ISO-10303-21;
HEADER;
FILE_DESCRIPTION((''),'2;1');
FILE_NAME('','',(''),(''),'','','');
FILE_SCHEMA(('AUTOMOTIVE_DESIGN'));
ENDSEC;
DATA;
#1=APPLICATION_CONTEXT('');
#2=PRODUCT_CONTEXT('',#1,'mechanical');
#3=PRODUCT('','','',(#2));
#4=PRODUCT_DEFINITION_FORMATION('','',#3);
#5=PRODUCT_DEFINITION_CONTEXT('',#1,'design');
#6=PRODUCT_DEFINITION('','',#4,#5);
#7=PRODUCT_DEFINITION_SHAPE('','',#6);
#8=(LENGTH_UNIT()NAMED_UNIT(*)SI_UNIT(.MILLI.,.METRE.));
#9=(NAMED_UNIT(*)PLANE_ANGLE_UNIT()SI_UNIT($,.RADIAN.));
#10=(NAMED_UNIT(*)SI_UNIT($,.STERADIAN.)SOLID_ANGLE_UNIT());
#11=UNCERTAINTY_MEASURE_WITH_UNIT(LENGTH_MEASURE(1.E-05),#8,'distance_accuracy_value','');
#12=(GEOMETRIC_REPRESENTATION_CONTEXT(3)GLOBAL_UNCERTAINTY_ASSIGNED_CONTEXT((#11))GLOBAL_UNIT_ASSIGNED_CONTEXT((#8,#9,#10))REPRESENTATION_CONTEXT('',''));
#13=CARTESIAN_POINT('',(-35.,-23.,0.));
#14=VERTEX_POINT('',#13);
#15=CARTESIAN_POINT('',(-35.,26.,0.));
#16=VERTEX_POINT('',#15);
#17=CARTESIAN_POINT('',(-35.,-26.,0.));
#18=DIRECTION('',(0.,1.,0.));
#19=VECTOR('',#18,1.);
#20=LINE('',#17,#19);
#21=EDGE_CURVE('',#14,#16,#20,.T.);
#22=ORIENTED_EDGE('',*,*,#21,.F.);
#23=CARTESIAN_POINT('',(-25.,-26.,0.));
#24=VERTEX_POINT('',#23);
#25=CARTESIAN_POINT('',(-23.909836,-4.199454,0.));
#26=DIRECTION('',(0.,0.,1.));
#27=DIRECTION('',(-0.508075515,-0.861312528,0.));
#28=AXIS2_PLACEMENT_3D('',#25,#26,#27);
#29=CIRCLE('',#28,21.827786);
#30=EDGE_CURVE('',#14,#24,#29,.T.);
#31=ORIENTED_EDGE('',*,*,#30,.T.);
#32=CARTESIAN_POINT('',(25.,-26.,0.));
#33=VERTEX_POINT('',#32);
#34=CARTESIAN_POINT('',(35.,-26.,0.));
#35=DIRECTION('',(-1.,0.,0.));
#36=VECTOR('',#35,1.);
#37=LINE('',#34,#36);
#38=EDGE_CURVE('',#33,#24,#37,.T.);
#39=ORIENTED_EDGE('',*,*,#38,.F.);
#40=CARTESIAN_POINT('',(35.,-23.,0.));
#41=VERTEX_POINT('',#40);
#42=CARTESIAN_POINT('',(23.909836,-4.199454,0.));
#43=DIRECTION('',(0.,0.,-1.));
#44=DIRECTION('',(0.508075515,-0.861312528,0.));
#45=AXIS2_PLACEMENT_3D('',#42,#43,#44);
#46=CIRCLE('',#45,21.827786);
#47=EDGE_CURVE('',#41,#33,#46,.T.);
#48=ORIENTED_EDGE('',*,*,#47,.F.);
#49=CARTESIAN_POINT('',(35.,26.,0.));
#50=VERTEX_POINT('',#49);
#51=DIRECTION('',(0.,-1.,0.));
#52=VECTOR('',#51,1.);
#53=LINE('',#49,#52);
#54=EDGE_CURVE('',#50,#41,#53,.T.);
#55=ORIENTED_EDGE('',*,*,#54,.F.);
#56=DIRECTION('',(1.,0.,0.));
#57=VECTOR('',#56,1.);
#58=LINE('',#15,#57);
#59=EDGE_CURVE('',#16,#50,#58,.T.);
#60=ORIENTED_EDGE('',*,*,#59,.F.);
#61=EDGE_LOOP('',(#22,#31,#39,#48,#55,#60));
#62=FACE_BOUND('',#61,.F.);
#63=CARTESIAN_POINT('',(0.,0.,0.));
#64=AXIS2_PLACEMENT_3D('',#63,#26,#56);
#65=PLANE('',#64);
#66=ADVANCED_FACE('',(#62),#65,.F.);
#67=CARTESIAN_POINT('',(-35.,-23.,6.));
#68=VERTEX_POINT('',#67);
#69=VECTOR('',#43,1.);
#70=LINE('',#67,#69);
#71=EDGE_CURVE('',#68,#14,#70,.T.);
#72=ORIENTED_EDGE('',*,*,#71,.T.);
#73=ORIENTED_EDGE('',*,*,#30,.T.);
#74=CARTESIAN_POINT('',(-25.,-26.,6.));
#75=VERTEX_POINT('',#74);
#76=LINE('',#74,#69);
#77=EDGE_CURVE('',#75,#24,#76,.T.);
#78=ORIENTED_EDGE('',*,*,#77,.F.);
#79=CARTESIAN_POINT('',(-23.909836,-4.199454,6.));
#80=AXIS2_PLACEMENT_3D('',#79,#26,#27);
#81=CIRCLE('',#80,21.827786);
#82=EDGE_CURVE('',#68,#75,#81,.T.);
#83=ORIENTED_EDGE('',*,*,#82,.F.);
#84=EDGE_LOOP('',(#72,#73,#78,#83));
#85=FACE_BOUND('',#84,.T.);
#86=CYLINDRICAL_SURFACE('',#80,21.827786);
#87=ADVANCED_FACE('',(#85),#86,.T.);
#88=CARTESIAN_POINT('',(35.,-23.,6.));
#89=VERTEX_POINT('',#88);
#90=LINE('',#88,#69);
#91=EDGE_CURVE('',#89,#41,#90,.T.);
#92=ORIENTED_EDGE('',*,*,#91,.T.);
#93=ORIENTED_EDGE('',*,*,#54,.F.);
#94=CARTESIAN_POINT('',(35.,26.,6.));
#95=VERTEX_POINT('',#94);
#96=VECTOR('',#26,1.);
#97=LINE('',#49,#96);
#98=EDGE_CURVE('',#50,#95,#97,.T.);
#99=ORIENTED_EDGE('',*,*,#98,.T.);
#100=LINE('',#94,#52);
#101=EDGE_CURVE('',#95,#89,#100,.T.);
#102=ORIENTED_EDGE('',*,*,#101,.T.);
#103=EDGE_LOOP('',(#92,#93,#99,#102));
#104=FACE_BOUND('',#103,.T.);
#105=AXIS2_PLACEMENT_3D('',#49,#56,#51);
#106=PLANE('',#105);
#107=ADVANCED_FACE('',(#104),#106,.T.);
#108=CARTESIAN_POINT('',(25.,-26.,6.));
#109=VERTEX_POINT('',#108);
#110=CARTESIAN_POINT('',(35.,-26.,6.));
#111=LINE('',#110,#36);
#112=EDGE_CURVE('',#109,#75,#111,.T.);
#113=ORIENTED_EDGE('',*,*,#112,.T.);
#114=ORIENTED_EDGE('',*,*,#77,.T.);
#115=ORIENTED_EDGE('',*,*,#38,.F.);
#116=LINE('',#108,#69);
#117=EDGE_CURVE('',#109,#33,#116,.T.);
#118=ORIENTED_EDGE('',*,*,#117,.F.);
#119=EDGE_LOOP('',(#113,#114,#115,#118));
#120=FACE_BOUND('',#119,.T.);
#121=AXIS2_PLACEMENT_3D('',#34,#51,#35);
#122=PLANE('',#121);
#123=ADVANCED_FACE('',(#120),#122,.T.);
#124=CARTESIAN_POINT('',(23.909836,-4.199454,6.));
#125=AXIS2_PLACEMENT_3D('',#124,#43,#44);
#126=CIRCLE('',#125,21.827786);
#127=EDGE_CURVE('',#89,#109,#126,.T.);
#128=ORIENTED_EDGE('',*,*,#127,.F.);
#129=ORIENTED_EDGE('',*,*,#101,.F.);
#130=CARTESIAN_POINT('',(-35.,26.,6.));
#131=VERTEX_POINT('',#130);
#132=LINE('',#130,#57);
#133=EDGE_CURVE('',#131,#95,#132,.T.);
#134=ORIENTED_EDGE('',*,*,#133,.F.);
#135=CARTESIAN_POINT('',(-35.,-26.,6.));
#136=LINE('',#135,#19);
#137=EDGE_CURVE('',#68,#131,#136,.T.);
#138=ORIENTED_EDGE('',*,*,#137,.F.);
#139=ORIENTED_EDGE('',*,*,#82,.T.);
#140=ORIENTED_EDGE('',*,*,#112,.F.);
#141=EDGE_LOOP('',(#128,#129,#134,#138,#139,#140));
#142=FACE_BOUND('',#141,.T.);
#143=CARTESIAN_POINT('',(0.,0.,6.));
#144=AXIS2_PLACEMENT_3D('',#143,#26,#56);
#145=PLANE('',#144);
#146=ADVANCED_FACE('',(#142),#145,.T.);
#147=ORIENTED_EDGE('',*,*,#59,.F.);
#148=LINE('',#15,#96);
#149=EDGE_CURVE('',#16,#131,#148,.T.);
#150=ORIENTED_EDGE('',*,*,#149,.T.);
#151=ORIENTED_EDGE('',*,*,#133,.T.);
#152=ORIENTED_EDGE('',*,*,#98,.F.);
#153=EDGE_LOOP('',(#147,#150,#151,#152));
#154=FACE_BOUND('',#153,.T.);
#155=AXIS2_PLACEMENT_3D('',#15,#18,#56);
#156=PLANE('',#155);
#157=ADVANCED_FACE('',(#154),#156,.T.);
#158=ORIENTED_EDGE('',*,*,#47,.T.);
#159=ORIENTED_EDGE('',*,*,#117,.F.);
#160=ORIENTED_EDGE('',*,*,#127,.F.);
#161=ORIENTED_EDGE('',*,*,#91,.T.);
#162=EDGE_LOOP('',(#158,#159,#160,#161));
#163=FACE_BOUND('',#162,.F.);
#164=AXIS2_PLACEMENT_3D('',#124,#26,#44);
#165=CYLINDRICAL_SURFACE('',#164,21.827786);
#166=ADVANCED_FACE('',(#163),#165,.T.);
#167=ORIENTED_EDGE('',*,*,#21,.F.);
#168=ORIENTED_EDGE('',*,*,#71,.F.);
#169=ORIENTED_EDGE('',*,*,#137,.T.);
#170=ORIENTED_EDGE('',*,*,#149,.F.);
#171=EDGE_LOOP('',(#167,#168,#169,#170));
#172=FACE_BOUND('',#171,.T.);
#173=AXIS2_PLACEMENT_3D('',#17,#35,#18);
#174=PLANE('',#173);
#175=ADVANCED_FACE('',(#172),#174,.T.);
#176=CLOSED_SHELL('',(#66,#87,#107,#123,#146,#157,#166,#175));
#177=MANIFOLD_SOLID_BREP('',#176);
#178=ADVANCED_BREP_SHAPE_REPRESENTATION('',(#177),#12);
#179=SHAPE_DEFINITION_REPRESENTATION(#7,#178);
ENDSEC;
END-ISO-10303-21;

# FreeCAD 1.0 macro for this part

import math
import FreeCAD as App
import Part
import Sketcher
from FreeCAD import Vector


def add_polygon(sketch, points):
    """Adds a closed chain of lines whose ends are joined by coincident constraints."""
    first, n = sketch.GeometryCount, len(points)
    for a, b in zip(points, points[1:] + points[:1]):
        sketch.addGeometry(Part.LineSegment(App.Vector(*a, 0), App.Vector(*b, 0)), False)
    for i in range(n):
        sketch.addConstraint(Sketcher.Constraint("Coincident", first + i, 2, first + (i + 1) % n, 1))

doc = App.newDocument("Part")
params = doc.addObject("Spreadsheet::Sheet", "Params")
for row, (alias, value) in enumerate([
    ("sketch1_width", "70 mm"),
    ("sketch1_height", "52 mm"),
    ("pad1_length", "6 mm"),
    ("sketch2_width", "10 mm"),
    ("sketch2_height", "3 mm"),
    ("pocket1_length", "6 mm"),
], start=1):
    params.set(f"A{row}", alias)
    params.set(f"B{row}", "=" + value)
    params.setAlias(f"B{row}", alias)

body = doc.addObject("PartDesign::Body", "Body")

# Sketch on XY plane
sketch1 = doc.addObject("Sketcher::SketchObject", "Sketch")
body.addObject(sketch1)
sketch1.AttachmentSupport = (doc.XY_Plane, [""])
sketch1.MapMode = "FlatFace"
add_polygon(sketch1, [(-35, -26), (35, -26), (35, 26), (-35, 26)])  # lines 0-3
sketch1.addConstraint([
    Sketcher.Constraint("Horizontal", 0),
    Sketcher.Constraint("Vertical", 1),
    Sketcher.Constraint("Horizontal", 2),
    Sketcher.Constraint("Vertical", 3),
    Sketcher.Constraint("Symmetric", 0, 2, 2, 2, -1, 1),
    Sketcher.Constraint("DistanceX", 0, 1, 0, 2, 70.0),
    Sketcher.Constraint("DistanceY", 1, 1, 1, 2, 52.0),
])
sketch1.setExpression("Constraints[9]", "Params.sketch1_width")
sketch1.setExpression("Constraints[10]", "Params.sketch1_height")
pad1 = doc.addObject("PartDesign::Pad", "Pad")
body.addObject(pad1)
pad1.Profile = sketch1
pad1.setExpression("Length", "Params.pad1_length")

# Sketch on XY plane
sketch2 = doc.addObject("Sketcher::SketchObject", "Sketch001")
body.addObject(sketch2)
sketch2.AttachmentSupport = (doc.XY_Plane, [""])
sketch2.MapMode = "FlatFace"
sketch2.AttachmentOffset = App.Placement(Vector(0, 0, 6), App.Rotation())
sketch2.addGeometry([
    Part.ArcOfCircle(Part.Circle(Vector(-23.9, -4.2, 0), Vector(0, 0, 1), 21.8), math.radians(-121), math.radians(-93)),
    Part.LineSegment(Vector(-35, -23, 0), Vector(-35, -26, 0)),
    Part.LineSegment(Vector(-35, -26, 0), Vector(-25, -26, 0)),
], False)
sketch2.addConstraint([
    Sketcher.Constraint("Coincident", 0, 1, 1, 1),
    Sketcher.Constraint("Coincident", 1, 2, 2, 1),
    Sketcher.Constraint("Coincident", 2, 2, 0, 2),
    Sketcher.Constraint("Vertical", 1),
    Sketcher.Constraint("Horizontal", 2),
    Sketcher.Constraint("DistanceX", 2, 1, 2, 2, 10.0),
    Sketcher.Constraint("DistanceY", 1, 2, 1, 1, 3.0),
    Sketcher.Constraint("DistanceX", 0, 1, -1, 1, 35.0),
    Sketcher.Constraint("DistanceY", 0, 1, -1, 1, 23.0),
    Sketcher.Constraint("Radius", 0, 21.8276),
])
sketch2.setExpression("Constraints[5]", "Params.sketch2_width")
sketch2.setExpression("Constraints[6]", "Params.sketch2_height")
pocket1 = doc.addObject("PartDesign::Pocket", "Pocket")
body.addObject(pocket1)
pocket1.Profile = sketch2
pocket1.setExpression("Length", "Params.pocket1_length")
doc.recompute()

mirrored = doc.addObject("PartDesign::Mirrored", "Mirrored")
body.addObject(mirrored)
mirrored.Originals = [pocket1]
mirrored.MirrorPlane = (doc.YZ_Plane, [""])
body.Tip = mirrored

doc.recompute()
